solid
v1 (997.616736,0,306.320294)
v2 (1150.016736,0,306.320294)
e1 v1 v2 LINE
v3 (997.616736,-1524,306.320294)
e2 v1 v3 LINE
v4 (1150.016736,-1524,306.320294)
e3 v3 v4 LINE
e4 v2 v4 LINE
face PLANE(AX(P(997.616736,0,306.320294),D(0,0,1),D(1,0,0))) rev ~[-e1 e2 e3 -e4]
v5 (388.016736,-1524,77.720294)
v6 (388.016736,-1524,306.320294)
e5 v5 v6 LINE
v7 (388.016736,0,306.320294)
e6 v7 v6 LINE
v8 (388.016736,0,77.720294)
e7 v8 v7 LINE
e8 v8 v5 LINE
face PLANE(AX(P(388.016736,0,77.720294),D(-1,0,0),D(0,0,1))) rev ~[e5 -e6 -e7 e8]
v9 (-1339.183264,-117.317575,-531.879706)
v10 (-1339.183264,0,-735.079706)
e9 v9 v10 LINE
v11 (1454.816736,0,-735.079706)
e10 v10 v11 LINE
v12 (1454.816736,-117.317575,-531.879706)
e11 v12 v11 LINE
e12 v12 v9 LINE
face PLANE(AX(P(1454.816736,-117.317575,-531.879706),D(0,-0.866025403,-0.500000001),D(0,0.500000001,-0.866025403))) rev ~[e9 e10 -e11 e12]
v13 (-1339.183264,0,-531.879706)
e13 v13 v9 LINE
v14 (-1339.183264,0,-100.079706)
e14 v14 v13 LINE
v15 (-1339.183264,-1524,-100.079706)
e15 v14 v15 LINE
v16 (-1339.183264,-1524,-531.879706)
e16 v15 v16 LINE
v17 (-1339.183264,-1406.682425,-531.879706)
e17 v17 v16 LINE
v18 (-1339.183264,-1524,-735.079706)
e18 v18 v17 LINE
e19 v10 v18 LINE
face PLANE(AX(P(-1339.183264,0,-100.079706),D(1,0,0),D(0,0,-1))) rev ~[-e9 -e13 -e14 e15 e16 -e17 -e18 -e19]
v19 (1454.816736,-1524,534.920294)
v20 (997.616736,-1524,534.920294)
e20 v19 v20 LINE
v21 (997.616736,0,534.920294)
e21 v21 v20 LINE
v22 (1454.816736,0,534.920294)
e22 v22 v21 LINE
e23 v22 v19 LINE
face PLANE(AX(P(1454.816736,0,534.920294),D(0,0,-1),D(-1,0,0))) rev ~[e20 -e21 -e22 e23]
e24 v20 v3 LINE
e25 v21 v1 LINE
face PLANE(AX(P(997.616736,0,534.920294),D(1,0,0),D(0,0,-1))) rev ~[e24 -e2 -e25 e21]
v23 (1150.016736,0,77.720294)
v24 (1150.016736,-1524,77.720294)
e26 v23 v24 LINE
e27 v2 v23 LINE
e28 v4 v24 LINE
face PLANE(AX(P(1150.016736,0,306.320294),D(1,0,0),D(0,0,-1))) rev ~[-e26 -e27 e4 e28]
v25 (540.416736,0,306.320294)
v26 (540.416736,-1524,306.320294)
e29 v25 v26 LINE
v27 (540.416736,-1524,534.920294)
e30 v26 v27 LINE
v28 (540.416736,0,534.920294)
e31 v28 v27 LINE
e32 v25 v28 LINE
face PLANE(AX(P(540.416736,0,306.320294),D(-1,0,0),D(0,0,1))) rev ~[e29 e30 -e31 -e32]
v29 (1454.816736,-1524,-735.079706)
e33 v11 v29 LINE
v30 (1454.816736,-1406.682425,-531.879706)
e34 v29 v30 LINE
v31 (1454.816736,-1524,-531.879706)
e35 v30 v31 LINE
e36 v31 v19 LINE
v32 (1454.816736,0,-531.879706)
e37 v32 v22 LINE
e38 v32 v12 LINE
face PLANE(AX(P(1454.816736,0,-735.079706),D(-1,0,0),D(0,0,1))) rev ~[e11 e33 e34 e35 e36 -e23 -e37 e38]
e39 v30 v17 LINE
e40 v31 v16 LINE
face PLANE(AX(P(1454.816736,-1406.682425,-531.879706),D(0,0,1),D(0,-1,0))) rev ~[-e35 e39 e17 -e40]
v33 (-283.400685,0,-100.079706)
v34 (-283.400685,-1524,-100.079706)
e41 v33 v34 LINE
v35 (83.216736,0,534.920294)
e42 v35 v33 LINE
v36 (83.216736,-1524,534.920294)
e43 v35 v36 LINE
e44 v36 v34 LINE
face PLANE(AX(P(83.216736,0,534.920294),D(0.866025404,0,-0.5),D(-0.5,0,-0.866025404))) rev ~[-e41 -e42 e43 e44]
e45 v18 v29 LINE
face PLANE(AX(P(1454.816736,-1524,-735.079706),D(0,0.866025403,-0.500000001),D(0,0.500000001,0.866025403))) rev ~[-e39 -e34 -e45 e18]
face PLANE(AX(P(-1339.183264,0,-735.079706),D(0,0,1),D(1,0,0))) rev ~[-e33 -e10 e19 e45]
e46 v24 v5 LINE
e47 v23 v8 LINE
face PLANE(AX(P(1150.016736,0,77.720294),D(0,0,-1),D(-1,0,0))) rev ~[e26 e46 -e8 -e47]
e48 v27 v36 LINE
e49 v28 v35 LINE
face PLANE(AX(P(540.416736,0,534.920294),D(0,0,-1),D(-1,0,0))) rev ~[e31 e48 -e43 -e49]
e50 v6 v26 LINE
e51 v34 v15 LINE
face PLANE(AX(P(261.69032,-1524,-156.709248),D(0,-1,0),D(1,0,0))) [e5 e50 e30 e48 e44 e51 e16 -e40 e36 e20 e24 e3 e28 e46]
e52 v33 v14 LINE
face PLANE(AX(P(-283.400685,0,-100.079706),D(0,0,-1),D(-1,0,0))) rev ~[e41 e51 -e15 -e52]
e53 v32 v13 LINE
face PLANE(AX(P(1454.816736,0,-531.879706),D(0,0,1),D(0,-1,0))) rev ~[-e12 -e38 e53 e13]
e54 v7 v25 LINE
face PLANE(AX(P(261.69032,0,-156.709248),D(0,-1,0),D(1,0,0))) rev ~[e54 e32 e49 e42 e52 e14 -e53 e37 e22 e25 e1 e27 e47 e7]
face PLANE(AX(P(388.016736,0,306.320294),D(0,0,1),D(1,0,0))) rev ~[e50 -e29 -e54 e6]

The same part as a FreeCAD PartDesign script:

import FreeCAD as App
import Part
import Sketcher
from FreeCAD import Vector
Q = App.Units.Quantity


def add_polygon(sketch, points):
    """Adds a closed chain of lines whose ends are joined by coincident constraints."""
    first, n = sketch.GeometryCount, len(points)
    for a, b in zip(points, points[1:] + points[:1]):
        sketch.addGeometry(Part.LineSegment(App.Vector(*a, 0), App.Vector(*b, 0)), False)
    for i in range(n):
        sketch.addConstraint(Sketcher.Constraint("Coincident", first + i, 2, first + (i + 1) % n, 1))

doc = App.newDocument("Part")
body = doc.addObject("PartDesign::Body", "Body")

# Sketch on XZ plane
sketch1 = body.newObject("Sketcher::SketchObject", "Sketch")
sketch1.AttachmentSupport = (doc.getObject("XZ_Plane"), [""])
sketch1.MapMode = "FlatFace"
add_polygon(sketch1, [(-1339.183264, -100.079706), (-1339.183264, -735.079706), (1454.816736, -735.079706), (1454.816736, 534.920294), (997.616736, 534.920294), (997.616736, 306.320294), (1150.016736, 306.320294), (1150.016736, 77.720294), (388.016736, 77.720294), (388.016736, 306.320294), (540.416736, 306.320294), (540.416736, 534.920294), (83.216736, 534.920294), (-283.400685, -100.079706)])  # lines 0-13
sketch1.addConstraint([
    Sketcher.Constraint("Vertical", 0),
    Sketcher.Constraint("Horizontal", 1),
    Sketcher.Constraint("Vertical", 2),
    Sketcher.Constraint("Horizontal", 3),
    Sketcher.Constraint("Vertical", 4),
    Sketcher.Constraint("Horizontal", 5),
    Sketcher.Constraint("Vertical", 6),
    Sketcher.Constraint("Horizontal", 7),
    Sketcher.Constraint("Vertical", 8),
    Sketcher.Constraint("Horizontal", 9),
    Sketcher.Constraint("Vertical", 10),
    Sketcher.Constraint("Horizontal", 11),
    Sketcher.Constraint("Horizontal", 13),
    Sketcher.Constraint("Horizontal", 5, 2, 8, 2),
    Sketcher.Constraint("Horizontal", 3, 2, 10, 2),
    Sketcher.Constraint("Equal", 5, 9),
    Sketcher.Constraint("Equal", 3, 11),
    Sketcher.Constraint("Equal", 4, 6),
    Sketcher.Constraint("DistanceX", 1, 1, 1, 2, Q("110 in")),
    Sketcher.Constraint("DistanceX", 3, 2, 3, 1, Q("18 in")),
    Sketcher.Constraint("DistanceX", 5, 1, 5, 2, Q("6 in")),
    Sketcher.Constraint("DistanceX", 7, 2, 7, 1, Q("30 in")),
    Sketcher.Constraint("DistanceY", 0, 2, 0, 1, Q("25 in")),
    Sketcher.Constraint("DistanceY", 2, 1, 2, 2, Q("50 in")),
    Sketcher.Constraint("DistanceY", 4, 2, 4, 1, Q("9 in")),
    Sketcher.Constraint("Angle", 12, Q("-120 deg")),
    Sketcher.Constraint("DistanceX", 0, 2, -1, 1, 1339.183264),
    Sketcher.Constraint("DistanceY", 0, 2, -1, 1, 735.079706),
])
pad1 = body.newObject("PartDesign::Pad", "Pad")
pad1.Profile = sketch1
pad1.Length = Q("60 in")

# Sketch on YZ plane
sketch2 = body.newObject("Sketcher::SketchObject", "Sketch001")
sketch2.AttachmentSupport = (doc.getObject("YZ_Plane"), [""])
sketch2.MapMode = "FlatFace"
sketch2.AttachmentOffset = App.Placement(Vector(0, 0, 1454.816736), App.Rotation())
add_polygon(sketch2, [(-117.317575, -531.879706), (0, -735.079706), (0, -531.879706)])  # lines 0-2
sketch2.addConstraint([
    Sketcher.Constraint("Vertical", 1),
    Sketcher.Constraint("Horizontal", 2),
    Sketcher.Constraint("PointOnObject", 0, 2, -2),
    Sketcher.Constraint("DistanceY", 1, 1, 1, 2, Q("8 in")),
    Sketcher.Constraint("Angle", 0, Q("-60 deg")),
    Sketcher.Constraint("DistanceY", 0, 2, -1, 1, 735.079706),
])
pocket1 = body.newObject("PartDesign::Pocket", "Pocket")
pocket1.Profile = sketch2
pocket1.Type = "ThroughAll"

# Sketch on YZ plane
sketch3 = body.newObject("Sketcher::SketchObject", "Sketch002")
sketch3.AttachmentSupport = (doc.getObject("YZ_Plane"), [""])
sketch3.MapMode = "FlatFace"
sketch3.AttachmentOffset = App.Placement(Vector(0, 0, 1454.816736), App.Rotation())
add_polygon(sketch3, [(-1524, -531.879706), (-1524, -735.079706), (-1406.682425, -531.879706)])  # lines 0-2
sketch3.addConstraint([
    Sketcher.Constraint("Vertical", 0),
    Sketcher.Constraint("Horizontal", 2),
    Sketcher.Constraint("DistanceY", 0, 2, 0, 1, Q("8 in")),
    Sketcher.Constraint("DistanceX", 0, 2, -1, 1, Q("60 in")),
    Sketcher.Constraint("Angle", 1, Q("60 deg")),
    Sketcher.Constraint("DistanceY", 0, 2, -1, 1, 735.079706),
])
pocket2 = body.newObject("PartDesign::Pocket", "Pocket001")
pocket2.Profile = sketch3
pocket2.Type = "ThroughAll"

doc.recompute()
